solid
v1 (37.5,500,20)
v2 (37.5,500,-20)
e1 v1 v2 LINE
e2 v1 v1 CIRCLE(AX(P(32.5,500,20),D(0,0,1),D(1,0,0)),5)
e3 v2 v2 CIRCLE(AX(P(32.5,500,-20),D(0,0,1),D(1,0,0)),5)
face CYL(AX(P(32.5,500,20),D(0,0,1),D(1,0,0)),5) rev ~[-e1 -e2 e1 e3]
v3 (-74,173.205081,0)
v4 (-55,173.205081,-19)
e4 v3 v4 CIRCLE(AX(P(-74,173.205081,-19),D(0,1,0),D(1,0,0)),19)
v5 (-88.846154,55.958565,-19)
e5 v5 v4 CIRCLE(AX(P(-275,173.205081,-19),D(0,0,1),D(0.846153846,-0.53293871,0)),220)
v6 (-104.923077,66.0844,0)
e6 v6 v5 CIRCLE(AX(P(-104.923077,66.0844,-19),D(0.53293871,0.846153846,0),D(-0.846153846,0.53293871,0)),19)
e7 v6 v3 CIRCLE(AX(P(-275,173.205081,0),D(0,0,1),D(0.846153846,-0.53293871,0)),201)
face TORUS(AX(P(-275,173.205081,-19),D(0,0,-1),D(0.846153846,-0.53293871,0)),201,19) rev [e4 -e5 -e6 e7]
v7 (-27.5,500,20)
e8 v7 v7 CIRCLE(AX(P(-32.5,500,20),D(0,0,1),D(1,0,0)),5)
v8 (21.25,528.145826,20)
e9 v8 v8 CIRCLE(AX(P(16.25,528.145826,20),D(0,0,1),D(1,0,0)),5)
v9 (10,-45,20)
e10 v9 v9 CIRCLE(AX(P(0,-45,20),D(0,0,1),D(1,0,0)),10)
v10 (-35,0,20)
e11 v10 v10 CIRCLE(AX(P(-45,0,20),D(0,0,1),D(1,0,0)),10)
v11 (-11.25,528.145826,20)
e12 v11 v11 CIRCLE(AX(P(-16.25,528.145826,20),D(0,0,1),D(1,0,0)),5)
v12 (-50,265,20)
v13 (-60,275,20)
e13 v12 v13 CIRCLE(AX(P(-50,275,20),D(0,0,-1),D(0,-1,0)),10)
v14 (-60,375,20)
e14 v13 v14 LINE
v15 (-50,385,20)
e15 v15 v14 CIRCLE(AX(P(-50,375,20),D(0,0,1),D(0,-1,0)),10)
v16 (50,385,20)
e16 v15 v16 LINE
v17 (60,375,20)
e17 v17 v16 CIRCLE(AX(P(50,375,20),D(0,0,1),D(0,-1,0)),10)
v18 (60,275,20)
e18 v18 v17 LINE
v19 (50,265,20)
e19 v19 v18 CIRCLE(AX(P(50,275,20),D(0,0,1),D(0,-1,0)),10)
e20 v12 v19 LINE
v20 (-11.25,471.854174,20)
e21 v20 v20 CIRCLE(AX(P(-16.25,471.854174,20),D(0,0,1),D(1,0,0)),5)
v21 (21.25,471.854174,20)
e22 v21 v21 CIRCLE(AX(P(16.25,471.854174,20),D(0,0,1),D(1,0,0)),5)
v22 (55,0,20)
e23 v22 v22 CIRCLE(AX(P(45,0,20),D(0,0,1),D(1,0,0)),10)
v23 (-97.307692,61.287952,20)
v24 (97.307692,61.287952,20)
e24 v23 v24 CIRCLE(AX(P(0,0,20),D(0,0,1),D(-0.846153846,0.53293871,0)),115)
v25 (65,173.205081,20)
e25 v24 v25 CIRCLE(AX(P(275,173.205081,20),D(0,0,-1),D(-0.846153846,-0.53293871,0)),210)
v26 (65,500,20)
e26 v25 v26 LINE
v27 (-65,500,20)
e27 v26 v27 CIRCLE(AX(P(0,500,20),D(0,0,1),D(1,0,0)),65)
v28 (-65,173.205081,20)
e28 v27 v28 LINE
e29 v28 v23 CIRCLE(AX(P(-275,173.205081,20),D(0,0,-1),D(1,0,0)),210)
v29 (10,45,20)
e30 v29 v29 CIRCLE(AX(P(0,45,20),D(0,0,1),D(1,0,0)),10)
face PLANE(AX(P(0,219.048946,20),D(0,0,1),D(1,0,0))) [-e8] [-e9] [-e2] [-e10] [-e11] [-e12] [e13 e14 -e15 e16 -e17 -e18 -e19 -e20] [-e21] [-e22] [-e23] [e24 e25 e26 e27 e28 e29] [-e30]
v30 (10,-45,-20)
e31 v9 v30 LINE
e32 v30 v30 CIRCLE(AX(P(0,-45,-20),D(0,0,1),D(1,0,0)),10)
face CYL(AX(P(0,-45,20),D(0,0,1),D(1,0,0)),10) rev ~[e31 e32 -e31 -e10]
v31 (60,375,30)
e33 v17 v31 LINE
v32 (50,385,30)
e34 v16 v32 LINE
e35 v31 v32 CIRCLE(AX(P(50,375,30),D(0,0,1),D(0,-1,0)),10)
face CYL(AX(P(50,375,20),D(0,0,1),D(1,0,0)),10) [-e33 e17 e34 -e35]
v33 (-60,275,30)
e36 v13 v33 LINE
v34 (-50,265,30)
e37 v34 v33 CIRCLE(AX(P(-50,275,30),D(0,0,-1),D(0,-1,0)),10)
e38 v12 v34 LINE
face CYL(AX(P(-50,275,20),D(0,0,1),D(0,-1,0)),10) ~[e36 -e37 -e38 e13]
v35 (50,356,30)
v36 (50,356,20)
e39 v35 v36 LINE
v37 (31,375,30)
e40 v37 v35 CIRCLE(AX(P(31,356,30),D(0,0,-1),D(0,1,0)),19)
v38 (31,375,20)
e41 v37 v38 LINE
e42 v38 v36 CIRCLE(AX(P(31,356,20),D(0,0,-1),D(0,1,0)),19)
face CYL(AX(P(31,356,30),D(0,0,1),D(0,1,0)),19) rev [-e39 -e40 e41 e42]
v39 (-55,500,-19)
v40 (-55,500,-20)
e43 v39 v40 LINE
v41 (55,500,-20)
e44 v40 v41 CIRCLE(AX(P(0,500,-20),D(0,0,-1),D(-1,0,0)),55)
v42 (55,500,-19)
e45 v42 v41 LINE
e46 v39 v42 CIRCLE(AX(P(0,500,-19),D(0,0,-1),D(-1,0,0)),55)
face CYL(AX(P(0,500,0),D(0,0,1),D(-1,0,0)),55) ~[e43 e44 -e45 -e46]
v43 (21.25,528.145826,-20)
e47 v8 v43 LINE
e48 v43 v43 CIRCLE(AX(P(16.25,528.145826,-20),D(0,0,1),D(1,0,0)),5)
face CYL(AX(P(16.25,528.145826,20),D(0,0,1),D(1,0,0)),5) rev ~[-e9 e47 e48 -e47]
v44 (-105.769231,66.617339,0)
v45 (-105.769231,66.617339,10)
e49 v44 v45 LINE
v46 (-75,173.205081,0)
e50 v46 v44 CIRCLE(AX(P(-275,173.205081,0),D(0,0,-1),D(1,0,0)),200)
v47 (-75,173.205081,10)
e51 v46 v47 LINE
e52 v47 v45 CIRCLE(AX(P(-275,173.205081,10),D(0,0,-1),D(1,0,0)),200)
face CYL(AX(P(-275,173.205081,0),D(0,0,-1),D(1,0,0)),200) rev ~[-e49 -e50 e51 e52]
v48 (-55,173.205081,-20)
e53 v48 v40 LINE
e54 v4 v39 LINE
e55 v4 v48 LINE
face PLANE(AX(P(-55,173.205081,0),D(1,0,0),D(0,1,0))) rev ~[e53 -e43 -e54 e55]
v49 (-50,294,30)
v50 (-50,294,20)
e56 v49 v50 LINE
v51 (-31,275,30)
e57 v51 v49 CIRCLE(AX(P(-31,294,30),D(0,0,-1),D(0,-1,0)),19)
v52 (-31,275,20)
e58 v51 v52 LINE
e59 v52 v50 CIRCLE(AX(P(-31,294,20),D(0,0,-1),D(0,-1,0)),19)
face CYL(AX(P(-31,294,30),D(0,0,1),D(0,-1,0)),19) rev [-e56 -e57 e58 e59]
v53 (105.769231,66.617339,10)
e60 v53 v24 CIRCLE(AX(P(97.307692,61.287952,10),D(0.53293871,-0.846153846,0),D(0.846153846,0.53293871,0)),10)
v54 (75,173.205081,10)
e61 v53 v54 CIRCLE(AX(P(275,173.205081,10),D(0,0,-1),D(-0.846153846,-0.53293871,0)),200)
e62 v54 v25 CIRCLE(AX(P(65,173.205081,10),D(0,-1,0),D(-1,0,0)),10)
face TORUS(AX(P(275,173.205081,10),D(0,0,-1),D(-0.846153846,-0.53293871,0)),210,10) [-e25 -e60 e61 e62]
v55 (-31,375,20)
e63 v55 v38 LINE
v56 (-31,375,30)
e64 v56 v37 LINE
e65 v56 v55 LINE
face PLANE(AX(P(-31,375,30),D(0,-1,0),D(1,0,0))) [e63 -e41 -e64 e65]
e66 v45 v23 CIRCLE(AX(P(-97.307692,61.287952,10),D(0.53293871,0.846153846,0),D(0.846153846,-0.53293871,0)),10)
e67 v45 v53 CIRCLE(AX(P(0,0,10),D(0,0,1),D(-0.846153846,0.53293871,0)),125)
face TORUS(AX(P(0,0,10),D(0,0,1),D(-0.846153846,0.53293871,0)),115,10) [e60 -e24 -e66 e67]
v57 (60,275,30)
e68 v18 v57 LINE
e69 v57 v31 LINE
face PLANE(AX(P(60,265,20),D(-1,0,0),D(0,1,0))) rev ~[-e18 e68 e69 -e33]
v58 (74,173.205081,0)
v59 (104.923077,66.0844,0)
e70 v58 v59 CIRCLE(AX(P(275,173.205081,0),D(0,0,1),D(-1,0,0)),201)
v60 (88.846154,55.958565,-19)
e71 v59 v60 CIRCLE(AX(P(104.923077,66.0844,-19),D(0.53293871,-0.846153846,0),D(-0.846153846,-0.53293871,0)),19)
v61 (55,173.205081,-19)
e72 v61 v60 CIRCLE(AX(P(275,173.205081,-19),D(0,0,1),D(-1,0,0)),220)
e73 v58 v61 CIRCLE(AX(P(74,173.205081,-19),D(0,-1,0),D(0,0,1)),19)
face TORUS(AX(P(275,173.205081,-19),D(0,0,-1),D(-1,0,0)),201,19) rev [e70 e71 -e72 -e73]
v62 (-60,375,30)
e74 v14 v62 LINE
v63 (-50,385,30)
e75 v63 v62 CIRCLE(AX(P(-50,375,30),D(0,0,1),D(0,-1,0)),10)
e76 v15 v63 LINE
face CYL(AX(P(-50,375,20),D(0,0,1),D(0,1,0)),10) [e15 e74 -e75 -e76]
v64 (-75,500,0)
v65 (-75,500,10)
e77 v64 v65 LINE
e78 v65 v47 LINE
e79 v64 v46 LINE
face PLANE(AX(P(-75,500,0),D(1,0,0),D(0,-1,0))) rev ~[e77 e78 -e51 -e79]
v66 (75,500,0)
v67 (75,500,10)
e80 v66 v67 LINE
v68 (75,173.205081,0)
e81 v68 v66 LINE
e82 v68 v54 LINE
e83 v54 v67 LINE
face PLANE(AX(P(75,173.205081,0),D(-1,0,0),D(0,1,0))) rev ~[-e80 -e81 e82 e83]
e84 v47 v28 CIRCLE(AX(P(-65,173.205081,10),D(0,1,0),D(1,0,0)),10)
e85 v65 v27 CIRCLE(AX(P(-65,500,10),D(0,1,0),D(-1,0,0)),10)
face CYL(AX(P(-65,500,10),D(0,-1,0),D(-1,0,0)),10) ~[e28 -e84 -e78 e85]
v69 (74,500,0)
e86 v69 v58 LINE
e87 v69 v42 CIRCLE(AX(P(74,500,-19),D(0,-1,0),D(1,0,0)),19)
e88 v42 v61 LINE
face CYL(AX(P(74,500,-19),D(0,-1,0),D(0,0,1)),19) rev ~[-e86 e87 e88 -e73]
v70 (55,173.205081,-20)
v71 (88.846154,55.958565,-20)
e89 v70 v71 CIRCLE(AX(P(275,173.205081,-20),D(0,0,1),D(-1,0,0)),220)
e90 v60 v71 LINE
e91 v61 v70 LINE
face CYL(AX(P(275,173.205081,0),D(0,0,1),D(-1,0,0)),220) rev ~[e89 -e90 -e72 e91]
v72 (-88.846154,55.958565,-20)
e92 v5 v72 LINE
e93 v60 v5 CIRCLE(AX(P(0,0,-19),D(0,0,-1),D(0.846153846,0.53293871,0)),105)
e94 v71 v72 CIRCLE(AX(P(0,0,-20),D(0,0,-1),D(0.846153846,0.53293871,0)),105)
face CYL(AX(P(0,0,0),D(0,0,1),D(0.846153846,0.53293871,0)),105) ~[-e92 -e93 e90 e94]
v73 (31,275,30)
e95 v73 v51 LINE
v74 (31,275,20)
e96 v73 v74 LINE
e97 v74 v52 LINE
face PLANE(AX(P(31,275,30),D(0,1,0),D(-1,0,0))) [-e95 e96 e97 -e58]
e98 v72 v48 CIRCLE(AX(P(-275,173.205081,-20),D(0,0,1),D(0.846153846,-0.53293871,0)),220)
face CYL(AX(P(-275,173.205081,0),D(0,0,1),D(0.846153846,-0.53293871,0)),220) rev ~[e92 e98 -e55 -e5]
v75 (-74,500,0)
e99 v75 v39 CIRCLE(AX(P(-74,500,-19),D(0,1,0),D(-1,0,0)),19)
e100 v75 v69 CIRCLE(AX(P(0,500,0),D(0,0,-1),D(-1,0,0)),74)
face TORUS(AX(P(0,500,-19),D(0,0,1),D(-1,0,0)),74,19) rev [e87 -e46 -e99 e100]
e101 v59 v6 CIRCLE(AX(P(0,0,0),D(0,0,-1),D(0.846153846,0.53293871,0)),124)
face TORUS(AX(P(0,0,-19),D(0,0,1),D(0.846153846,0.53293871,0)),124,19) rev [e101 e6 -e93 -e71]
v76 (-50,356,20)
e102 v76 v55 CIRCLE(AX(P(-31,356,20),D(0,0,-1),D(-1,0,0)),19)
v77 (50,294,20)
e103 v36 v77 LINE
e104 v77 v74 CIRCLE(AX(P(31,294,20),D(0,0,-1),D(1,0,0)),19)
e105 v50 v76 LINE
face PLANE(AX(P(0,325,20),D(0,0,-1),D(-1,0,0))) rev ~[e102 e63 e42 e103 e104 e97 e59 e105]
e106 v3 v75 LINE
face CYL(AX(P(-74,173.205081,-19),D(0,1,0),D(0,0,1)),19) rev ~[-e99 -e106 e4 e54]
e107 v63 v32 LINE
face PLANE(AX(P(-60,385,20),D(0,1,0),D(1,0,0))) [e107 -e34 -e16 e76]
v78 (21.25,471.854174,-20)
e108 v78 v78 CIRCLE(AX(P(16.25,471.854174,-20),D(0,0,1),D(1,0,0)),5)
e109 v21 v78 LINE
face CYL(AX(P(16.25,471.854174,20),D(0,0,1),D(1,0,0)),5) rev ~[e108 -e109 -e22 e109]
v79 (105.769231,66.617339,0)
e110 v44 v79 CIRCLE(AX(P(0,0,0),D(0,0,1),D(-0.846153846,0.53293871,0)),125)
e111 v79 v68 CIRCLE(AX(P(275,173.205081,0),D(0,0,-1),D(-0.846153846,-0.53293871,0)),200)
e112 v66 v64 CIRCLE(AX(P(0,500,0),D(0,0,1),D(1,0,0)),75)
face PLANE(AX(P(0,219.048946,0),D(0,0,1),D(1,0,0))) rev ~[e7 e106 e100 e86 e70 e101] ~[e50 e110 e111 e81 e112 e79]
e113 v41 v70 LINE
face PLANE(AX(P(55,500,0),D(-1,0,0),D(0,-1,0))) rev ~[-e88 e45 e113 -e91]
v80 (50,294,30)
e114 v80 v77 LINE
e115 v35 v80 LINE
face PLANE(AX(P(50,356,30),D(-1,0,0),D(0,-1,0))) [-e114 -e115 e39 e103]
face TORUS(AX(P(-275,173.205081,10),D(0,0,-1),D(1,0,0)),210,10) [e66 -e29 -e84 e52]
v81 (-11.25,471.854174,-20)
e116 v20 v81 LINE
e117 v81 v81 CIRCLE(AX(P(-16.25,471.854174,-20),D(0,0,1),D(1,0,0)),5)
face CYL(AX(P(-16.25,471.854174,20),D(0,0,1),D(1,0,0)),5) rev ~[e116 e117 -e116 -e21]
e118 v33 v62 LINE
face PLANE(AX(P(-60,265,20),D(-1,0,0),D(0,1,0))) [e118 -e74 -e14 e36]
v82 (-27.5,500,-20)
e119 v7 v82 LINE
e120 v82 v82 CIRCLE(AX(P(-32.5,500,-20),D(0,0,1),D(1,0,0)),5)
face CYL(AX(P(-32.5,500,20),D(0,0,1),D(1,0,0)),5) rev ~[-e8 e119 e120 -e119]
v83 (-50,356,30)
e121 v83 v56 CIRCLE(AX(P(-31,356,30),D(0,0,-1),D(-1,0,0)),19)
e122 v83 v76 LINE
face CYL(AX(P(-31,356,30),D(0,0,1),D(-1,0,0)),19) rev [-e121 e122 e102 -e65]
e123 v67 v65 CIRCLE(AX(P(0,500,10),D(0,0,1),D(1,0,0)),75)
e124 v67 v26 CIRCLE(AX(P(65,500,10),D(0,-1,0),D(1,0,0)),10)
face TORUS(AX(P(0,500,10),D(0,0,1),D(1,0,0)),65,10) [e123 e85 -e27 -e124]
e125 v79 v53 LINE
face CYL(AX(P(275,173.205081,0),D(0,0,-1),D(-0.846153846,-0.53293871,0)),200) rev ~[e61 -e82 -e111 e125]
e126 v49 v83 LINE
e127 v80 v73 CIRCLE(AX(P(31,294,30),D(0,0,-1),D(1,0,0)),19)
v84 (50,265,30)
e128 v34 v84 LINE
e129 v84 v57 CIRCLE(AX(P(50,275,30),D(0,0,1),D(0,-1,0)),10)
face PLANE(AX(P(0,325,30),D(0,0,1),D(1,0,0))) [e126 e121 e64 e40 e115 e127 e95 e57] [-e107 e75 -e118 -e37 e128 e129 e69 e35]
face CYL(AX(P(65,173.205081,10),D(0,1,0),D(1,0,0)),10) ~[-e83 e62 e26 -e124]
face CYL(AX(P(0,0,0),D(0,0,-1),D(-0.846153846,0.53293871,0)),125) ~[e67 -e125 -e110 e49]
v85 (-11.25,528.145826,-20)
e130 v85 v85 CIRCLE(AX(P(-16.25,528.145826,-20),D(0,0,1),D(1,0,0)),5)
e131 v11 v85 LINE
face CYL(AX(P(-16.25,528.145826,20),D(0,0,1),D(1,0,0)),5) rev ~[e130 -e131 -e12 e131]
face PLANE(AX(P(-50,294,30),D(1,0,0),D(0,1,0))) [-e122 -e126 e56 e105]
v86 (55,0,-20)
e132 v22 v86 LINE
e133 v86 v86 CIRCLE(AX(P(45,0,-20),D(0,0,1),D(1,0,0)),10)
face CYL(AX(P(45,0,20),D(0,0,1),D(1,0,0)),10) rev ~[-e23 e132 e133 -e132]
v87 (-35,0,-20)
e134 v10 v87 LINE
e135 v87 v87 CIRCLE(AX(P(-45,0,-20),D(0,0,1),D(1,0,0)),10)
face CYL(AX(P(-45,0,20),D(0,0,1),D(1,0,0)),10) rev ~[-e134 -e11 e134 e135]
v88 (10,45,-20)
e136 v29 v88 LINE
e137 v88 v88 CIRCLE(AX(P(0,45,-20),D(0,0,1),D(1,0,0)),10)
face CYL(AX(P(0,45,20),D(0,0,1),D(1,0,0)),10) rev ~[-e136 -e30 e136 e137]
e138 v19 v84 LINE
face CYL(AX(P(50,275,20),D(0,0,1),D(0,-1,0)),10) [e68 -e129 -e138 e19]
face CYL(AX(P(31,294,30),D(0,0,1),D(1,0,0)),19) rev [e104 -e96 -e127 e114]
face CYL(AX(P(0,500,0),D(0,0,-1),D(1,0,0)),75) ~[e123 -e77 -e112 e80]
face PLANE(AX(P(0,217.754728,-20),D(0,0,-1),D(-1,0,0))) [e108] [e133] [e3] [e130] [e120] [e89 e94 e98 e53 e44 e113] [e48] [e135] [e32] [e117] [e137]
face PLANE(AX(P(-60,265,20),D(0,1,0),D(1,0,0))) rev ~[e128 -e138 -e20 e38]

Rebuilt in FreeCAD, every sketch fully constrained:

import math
import FreeCAD as App
import Part
import Sketcher
from FreeCAD import Vector
Q = App.Units.Quantity


def edges_at(feature, points):
    """Names of the edges that pass closest to the given points."""
    edges = feature.Shape.Edges
    near = lambda p: min(range(len(edges)), key=lambda i: edges[i].distToShape(Part.Vertex(*p))[0])
    return sorted({f"Edge{near(p) + 1}" for p in points})


def add_polygon(sketch, points):
    """Adds a closed chain of lines whose ends are joined by coincident constraints."""
    first, n = sketch.GeometryCount, len(points)
    for a, b in zip(points, points[1:] + points[:1]):
        sketch.addGeometry(Part.LineSegment(App.Vector(*a, 0), App.Vector(*b, 0)), False)
    for i in range(n):
        sketch.addConstraint(Sketcher.Constraint("Coincident", first + i, 2, first + (i + 1) % n, 1))

doc = App.newDocument("Part")
body = doc.addObject("PartDesign::Body", "Body")

# Sketch on XY plane
sketch1 = body.newObject("Sketcher::SketchObject", "Sketch")
sketch1.AttachmentSupport = (doc.getObject("XY_Plane"), [""])
sketch1.MapMode = "FlatFace"
sketch1.addGeometry([
    Part.LineSegment(Vector(-75, 500, 0), Vector(-75, 173.205081, 0)),  # 0
    Part.ArcOfCircle(Part.Circle(Vector(-275, 173.205081, 0), Vector(0, 0, 1), 200), math.radians(-32.204228), math.radians(0)),  # 1
    Part.ArcOfCircle(Part.Circle(Vector(0, 0, 0), Vector(0, 0, 1), 125), math.radians(147.795772), math.radians(392.204228)),  # 2
    Part.ArcOfCircle(Part.Circle(Vector(275, 173.205081, 0), Vector(0, 0, 1), 200), math.radians(180), math.radians(212.204228)),  # 3
    Part.LineSegment(Vector(75, 173.205081, 0), Vector(75, 500, 0)),  # 4
    Part.ArcOfCircle(Part.Circle(Vector(0, 500, 0), Vector(0, 0, 1), 75), math.radians(0), math.radians(180)),  # 5
], False)
sketch1.addConstraint([
    Sketcher.Constraint("Tangent", 0, 2, 1, 2),
    Sketcher.Constraint("Tangent", 1, 1, 2, 1),
    Sketcher.Constraint("Tangent", 2, 2, 3, 2),
    Sketcher.Constraint("Tangent", 3, 1, 4, 1),
    Sketcher.Constraint("Tangent", 4, 2, 5, 1),
    Sketcher.Constraint("Tangent", 5, 2, 0, 1),
    Sketcher.Constraint("Vertical", 0),
    Sketcher.Constraint("Vertical", 4),
    Sketcher.Constraint("Coincident", 2, 3, -1, 1),
    Sketcher.Constraint("Equal", 1, 3),
    Sketcher.Constraint("PointOnObject", 5, 3, -2),
    Sketcher.Constraint("Radius", 1, Q("200 mm")),
    Sketcher.Constraint("Radius", 2, Q("125 mm")),
    Sketcher.Constraint("Radius", 5, Q("75 mm")),
    Sketcher.Constraint("DistanceY", -1, 1, 5, 3, Q("500 mm")),
])
pad1 = body.newObject("PartDesign::Pad", "Pad")
pad1.Profile = sketch1
pad1.Length = 20

# Sketch on XY plane
sketch2 = body.newObject("Sketcher::SketchObject", "Sketch001")
sketch2.AttachmentSupport = (doc.getObject("XY_Plane"), [""])
sketch2.MapMode = "FlatFace"
sketch2.addGeometry([
    Part.LineSegment(Vector(55, 500, 0), Vector(55, 173.205081, 0)),  # 0
    Part.ArcOfCircle(Part.Circle(Vector(275, 173.205081, 0), Vector(0, 0, 1), 220), math.radians(180), math.radians(212.204228)),  # 1
    Part.ArcOfCircle(Part.Circle(Vector(0, 0, 0), Vector(0, 0, 1), 105), math.radians(147.795772), math.radians(392.204228)),  # 2
    Part.ArcOfCircle(Part.Circle(Vector(-275, 173.205081, 0), Vector(0, 0, 1), 220), math.radians(-32.204228), math.radians(0)),  # 3
    Part.LineSegment(Vector(-55, 173.205081, 0), Vector(-55, 500, 0)),  # 4
    Part.ArcOfCircle(Part.Circle(Vector(0, 500, 0), Vector(0, 0, 1), 55), math.radians(0), math.radians(180)),  # 5
], False)
sketch2.addConstraint([
    Sketcher.Constraint("Tangent", 0, 2, 1, 1),
    Sketcher.Constraint("Tangent", 1, 2, 2, 2),
    Sketcher.Constraint("Tangent", 2, 1, 3, 1),
    Sketcher.Constraint("Tangent", 3, 2, 4, 1),
    Sketcher.Constraint("Tangent", 4, 2, 5, 2),
    Sketcher.Constraint("Tangent", 5, 1, 0, 1),
    Sketcher.Constraint("Vertical", 0),
    Sketcher.Constraint("Vertical", 4),
    Sketcher.Constraint("Coincident", 2, 3, -1, 1),
    Sketcher.Constraint("Equal", 1, 3),
    Sketcher.Constraint("PointOnObject", 5, 3, -2),
    Sketcher.Constraint("Radius", 1, Q("220 mm")),
    Sketcher.Constraint("Radius", 2, Q("105 mm")),
    Sketcher.Constraint("Radius", 5, Q("55 mm")),
    Sketcher.Constraint("DistanceY", -1, 1, 5, 3, Q("500 mm")),
])
pad2 = body.newObject("PartDesign::Pad", "Pad001")
pad2.Profile = sketch2
pad2.Length = 20
pad2.Reversed = True
doc.recompute()

fillet = body.newObject("PartDesign::Fillet", "Fillet")
fillet.Base = (pad2, edges_at(pad2, [
    (0, 555, 0),
    (55, 336.603, 0),
    (63.631, 112.188, 0),
    (0, -105, 0),
    (-63.631, 112.188, 0),
    (-55, 336.603, 0),
]))
fillet.Radius = 19
doc.recompute()

fillet2 = body.newObject("PartDesign::Fillet", "Fillet001")
fillet2.Base = (fillet, edges_at(fillet, [
    (-82.846, 117.735, 20),
    (0, -125, 20),
    (82.846, 117.735, 20),
    (75, 336.603, 20),
    (0, 575, 20),
    (-75, 336.603, 20),
]))
fillet2.Radius = 10

# Sketch on XY plane
sketch3 = body.newObject("Sketcher::SketchObject", "Sketch002")
sketch3.AttachmentSupport = (doc.getObject("XY_Plane"), [""])
sketch3.MapMode = "FlatFace"
sketch3.AttachmentOffset = App.Placement(Vector(0, 0, 20), App.Rotation())
sketch3.addGeometry([
    Part.Circle(Vector(-32.5, 500, 0), Vector(0, 0, 1), 5),  # 0
    Part.Circle(Vector(-16.25, 528.145826, 0), Vector(0, 0, 1), 5),  # 1
    Part.Circle(Vector(16.25, 528.145826, 0), Vector(0, 0, 1), 5),  # 2
    Part.Circle(Vector(32.5, 500, 0), Vector(0, 0, 1), 5),  # 3
    Part.Circle(Vector(16.25, 471.854174, 0), Vector(0, 0, 1), 5),  # 4
    Part.Circle(Vector(-16.25, 471.854174, 0), Vector(0, 0, 1), 5),  # 5
    Part.Circle(Vector(-45, 0, 0), Vector(0, 0, 1), 10),  # 6
    Part.Circle(Vector(0, 45, 0), Vector(0, 0, 1), 10),  # 7
    Part.Circle(Vector(45, 0, 0), Vector(0, 0, 1), 10),  # 8
    Part.Circle(Vector(0, -45, 0), Vector(0, 0, 1), 10),  # 9
], False)
sketch3.addConstraint([
    Sketcher.Constraint("Equal", 0, 1),
    Sketcher.Constraint("Equal", 1, 2),
    Sketcher.Constraint("Equal", 2, 3),
    Sketcher.Constraint("Equal", 3, 4),
    Sketcher.Constraint("Equal", 4, 5),
    Sketcher.Constraint("Equal", 6, 7),
    Sketcher.Constraint("Equal", 7, 8),
    Sketcher.Constraint("Equal", 8, 9),
    Sketcher.Constraint("Symmetric", 6, 3, 8, 3, -1, 1),
    Sketcher.Constraint("Symmetric", 7, 3, 9, 3, -1, 1),
    Sketcher.Constraint("Symmetric", 1, 3, 2, 3, -2),
    Sketcher.Constraint("Symmetric", 0, 3, 3, 3, -2),
    Sketcher.Constraint("Symmetric", 4, 3, 5, 3, -2),
    Sketcher.Constraint("PointOnObject", 6, 3, -1),
    Sketcher.Constraint("PointOnObject", 7, 3, -2),
    Sketcher.Constraint("Vertical", 2, 3, 4, 3),
    Sketcher.Constraint("Diameter", 0, Q("10 mm")),
    Sketcher.Constraint("Diameter", 6, Q("20 mm")),
    Sketcher.Constraint("DistanceY", -1, 1, 0, 3, Q("500 mm")),
    Sketcher.Constraint("DistanceX", 6, 3, -1, 1, Q("45 mm")),
    Sketcher.Constraint("DistanceY", -1, 1, 7, 3, Q("45 mm")),
    Sketcher.Constraint("DistanceX", 0, 3, 3, 3, Q("65 mm")),
    Sketcher.Constraint("DistanceX", 1, 3, 2, 3, Q("32.5 mm")),
    Sketcher.Constraint("DistanceY", 4, 3, 2, 3, Q("56.291651 mm")),
    Sketcher.Constraint("DistanceY", -1, 1, 1, 3, Q("528.145826 mm")),
])
pocket1 = body.newObject("PartDesign::Pocket", "Pocket")
pocket1.Profile = sketch3
pocket1.Type = "ThroughAll"

# Sketch on XY plane
sketch4 = body.newObject("Sketcher::SketchObject", "Sketch003")
sketch4.AttachmentSupport = (doc.getObject("XY_Plane"), [""])
sketch4.MapMode = "FlatFace"
sketch4.AttachmentOffset = App.Placement(Vector(0, 0, 20), App.Rotation())
add_polygon(sketch4, [(-60, 385), (-60, 265), (60, 265), (60, 385)])  # lines 0-3
sketch4.addConstraint([
    Sketcher.Constraint("Vertical", 0),
    Sketcher.Constraint("Horizontal", 1),
    Sketcher.Constraint("Vertical", 2),
    Sketcher.Constraint("Horizontal", 3),
    Sketcher.Constraint("Equal", 3, 0),
    Sketcher.Constraint("DistanceX", 1, 1, 1, 2, Q("120 mm")),
    Sketcher.Constraint("DistanceX", 0, 2, -1, 1, Q("60 mm")),
    Sketcher.Constraint("DistanceY", -1, 1, 0, 2, Q("265 mm")),
])
pad3 = body.newObject("PartDesign::Pad", "Pad002")
pad3.Profile = sketch4
pad3.Length = 10
doc.recompute()

fillet3 = body.newObject("PartDesign::Fillet", "Fillet002")
fillet3.Base = (pad3, edges_at(pad3, [
    (60, 265, 25),
    (60, 385, 25),
    (-60, 385, 25),
    (-60, 265, 25),
]))
fillet3.Radius = 10

# Sketch on XY plane
sketch5 = body.newObject("Sketcher::SketchObject", "Sketch004")
sketch5.AttachmentSupport = (doc.getObject("XY_Plane"), [""])
sketch5.MapMode = "FlatFace"
sketch5.AttachmentOffset = App.Placement(Vector(0, 0, 30), App.Rotation())
sketch5.addGeometry([
    Part.LineSegment(Vector(-31, 275, 0), Vector(31, 275, 0)),  # 0
    Part.ArcOfCircle(Part.Circle(Vector(31, 294, 0), Vector(0, 0, 1), 19), math.radians(-90), math.radians(0)),  # 1
    Part.LineSegment(Vector(50, 294, 0), Vector(50, 356, 0)),  # 2
    Part.ArcOfCircle(Part.Circle(Vector(31, 356, 0), Vector(0, 0, 1), 19), math.radians(0), math.radians(90)),  # 3
    Part.LineSegment(Vector(31, 375, 0), Vector(-31, 375, 0)),  # 4
    Part.ArcOfCircle(Part.Circle(Vector(-31, 356, 0), Vector(0, 0, 1), 19), math.radians(90), math.radians(180)),  # 5
    Part.LineSegment(Vector(-50, 356, 0), Vector(-50, 294, 0)),  # 6
    Part.ArcOfCircle(Part.Circle(Vector(-31, 294, 0), Vector(0, 0, 1), 19), math.radians(180), math.radians(270)),  # 7
], False)
sketch5.addConstraint([
    Sketcher.Constraint("Tangent", 0, 2, 1, 1),
    Sketcher.Constraint("Tangent", 1, 2, 2, 1),
    Sketcher.Constraint("Tangent", 2, 2, 3, 1),
    Sketcher.Constraint("Tangent", 3, 2, 4, 1),
    Sketcher.Constraint("Tangent", 4, 2, 5, 1),
    Sketcher.Constraint("Tangent", 5, 2, 6, 1),
    Sketcher.Constraint("Tangent", 6, 2, 7, 1),
    Sketcher.Constraint("Tangent", 7, 2, 0, 1),
    Sketcher.Constraint("Horizontal", 0),
    Sketcher.Constraint("Vertical", 2),
    Sketcher.Constraint("Horizontal", 4),
    Sketcher.Constraint("Vertical", 6),
    Sketcher.Constraint("Equal", 1, 3),
    Sketcher.Constraint("Equal", 3, 5),
    Sketcher.Constraint("Equal", 5, 7),
    Sketcher.Constraint("Equal", 4, 2),
    Sketcher.Constraint("Radius", 1, Q("19 mm")),
    Sketcher.Constraint("DistanceX", 0, 1, 0, 2, Q("62 mm")),
    Sketcher.Constraint("DistanceX", -1, 1, 1, 3, Q("31 mm")),
    Sketcher.Constraint("DistanceY", -1, 1, 1, 3, Q("294 mm")),
])
pocket2 = body.newObject("PartDesign::Pocket", "Pocket001")
pocket2.Profile = sketch5
pocket2.Length = 10

doc.recompute()
